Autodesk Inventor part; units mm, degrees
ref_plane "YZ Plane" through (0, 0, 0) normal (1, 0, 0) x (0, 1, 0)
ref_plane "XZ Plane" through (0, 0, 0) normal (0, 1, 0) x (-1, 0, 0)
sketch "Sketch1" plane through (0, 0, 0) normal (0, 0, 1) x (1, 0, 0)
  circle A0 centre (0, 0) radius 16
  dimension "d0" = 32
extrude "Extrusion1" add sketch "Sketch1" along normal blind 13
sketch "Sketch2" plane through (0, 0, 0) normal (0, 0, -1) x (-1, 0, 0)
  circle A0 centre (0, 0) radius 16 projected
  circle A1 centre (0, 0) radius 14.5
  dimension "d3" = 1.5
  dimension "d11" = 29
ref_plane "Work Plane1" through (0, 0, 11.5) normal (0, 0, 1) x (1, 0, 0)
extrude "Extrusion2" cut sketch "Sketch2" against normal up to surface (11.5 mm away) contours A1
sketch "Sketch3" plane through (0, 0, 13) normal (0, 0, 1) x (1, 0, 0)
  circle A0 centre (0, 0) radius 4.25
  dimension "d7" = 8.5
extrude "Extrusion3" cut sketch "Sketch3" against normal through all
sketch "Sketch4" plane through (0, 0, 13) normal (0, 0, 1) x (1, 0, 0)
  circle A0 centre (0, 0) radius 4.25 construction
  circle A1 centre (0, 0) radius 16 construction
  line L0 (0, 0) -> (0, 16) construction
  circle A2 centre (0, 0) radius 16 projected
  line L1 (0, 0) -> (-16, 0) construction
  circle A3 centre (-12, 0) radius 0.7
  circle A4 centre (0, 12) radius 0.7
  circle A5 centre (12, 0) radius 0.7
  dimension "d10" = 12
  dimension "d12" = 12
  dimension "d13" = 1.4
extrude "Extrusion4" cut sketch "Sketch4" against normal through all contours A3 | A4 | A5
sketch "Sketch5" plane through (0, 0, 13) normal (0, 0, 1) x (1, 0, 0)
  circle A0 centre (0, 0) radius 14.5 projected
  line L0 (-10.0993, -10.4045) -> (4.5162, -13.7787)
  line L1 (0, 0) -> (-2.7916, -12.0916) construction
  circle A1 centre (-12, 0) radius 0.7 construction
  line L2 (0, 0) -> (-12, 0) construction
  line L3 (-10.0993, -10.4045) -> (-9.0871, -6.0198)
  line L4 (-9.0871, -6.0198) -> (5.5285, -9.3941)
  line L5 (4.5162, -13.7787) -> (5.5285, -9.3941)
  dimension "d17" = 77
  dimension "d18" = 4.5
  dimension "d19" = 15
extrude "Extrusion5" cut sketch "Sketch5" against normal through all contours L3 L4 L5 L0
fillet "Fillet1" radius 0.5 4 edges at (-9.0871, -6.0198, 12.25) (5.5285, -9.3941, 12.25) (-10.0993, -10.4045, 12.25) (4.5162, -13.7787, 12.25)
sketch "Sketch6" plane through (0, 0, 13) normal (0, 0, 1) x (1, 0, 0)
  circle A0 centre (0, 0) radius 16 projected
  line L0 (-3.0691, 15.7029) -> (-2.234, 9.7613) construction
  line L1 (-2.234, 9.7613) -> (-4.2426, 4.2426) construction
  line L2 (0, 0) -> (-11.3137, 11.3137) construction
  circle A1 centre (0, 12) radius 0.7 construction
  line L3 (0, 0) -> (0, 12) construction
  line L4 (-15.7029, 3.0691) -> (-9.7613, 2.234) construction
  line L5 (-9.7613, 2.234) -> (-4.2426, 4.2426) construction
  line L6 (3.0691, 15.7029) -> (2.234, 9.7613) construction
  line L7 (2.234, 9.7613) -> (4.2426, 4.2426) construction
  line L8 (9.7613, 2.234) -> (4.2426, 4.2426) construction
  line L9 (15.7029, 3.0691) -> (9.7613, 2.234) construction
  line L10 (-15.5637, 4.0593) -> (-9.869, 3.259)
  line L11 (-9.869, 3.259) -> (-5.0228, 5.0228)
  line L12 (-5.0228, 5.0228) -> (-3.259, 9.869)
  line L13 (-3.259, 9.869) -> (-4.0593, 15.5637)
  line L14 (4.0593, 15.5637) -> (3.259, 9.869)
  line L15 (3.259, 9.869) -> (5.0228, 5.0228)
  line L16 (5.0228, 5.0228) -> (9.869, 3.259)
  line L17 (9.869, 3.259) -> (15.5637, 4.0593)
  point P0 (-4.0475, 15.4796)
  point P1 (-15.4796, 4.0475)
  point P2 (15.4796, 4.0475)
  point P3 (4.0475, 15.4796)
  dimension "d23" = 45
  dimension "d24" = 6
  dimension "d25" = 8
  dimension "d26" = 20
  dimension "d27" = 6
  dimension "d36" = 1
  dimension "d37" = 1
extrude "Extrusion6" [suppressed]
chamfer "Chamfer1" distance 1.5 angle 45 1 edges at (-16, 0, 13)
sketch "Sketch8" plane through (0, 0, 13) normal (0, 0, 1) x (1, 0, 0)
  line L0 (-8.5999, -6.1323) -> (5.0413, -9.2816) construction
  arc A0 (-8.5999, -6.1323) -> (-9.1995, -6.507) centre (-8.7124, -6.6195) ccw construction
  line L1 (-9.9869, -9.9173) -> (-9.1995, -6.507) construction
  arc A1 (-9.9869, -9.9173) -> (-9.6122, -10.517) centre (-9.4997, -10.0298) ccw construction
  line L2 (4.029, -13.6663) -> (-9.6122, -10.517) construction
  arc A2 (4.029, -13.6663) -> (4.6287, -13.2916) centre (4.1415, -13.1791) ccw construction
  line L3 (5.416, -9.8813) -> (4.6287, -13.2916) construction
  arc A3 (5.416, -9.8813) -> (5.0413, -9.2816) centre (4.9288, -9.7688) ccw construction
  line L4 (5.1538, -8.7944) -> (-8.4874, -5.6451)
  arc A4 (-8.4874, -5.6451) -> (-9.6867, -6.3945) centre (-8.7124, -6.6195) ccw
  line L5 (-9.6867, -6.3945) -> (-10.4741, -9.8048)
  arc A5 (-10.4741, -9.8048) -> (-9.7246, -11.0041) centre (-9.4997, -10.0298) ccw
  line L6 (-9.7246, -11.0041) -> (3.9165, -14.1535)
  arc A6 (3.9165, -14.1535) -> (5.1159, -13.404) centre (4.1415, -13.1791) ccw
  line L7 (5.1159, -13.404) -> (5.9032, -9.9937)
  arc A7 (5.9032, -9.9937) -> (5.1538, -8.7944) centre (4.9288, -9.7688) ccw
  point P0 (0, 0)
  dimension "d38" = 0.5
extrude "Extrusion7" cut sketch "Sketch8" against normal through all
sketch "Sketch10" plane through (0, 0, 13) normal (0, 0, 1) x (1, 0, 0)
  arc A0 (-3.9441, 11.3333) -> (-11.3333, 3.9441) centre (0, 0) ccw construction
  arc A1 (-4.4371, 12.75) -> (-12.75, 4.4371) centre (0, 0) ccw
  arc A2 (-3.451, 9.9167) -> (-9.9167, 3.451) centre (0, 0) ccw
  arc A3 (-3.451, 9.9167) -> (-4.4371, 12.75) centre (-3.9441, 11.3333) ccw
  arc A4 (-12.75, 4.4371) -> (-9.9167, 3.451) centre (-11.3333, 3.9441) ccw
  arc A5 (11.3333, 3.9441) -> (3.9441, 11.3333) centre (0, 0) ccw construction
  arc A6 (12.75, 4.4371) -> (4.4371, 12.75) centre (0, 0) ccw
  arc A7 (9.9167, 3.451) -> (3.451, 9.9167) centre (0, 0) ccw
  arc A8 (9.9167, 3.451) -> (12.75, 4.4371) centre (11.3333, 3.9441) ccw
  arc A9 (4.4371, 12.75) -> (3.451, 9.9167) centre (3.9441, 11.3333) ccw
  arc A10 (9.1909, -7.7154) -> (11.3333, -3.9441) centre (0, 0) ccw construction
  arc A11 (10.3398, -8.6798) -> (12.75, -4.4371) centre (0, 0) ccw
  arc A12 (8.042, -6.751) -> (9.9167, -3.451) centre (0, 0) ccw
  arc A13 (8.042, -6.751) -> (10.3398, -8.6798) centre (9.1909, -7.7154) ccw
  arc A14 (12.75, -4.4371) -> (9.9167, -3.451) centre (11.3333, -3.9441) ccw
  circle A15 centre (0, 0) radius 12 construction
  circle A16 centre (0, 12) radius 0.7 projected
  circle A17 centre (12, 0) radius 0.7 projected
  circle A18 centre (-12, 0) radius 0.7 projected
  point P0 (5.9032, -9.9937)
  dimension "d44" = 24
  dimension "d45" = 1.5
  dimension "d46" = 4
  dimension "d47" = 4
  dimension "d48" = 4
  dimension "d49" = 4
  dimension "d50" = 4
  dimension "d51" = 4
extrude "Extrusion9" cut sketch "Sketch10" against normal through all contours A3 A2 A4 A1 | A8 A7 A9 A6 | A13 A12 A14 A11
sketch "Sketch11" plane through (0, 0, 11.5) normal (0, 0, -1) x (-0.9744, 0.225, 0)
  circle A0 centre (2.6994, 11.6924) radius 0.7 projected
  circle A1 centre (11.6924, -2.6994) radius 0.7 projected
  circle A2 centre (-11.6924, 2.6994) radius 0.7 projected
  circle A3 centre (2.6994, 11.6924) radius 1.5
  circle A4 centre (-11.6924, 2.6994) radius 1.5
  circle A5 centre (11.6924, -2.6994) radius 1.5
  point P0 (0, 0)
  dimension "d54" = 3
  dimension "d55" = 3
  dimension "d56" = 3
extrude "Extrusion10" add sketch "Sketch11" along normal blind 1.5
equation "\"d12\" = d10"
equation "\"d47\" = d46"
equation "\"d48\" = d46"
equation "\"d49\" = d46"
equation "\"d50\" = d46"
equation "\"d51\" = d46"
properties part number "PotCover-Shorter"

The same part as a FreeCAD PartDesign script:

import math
import FreeCAD as App
import Part
import Sketcher
Q = App.Units.Quantity


def edges_at(feature, points):
    """Names of the edges that pass closest to the given points."""
    edges = feature.Shape.Edges
    near = lambda p: min(range(len(edges)), key=lambda i: edges[i].distToShape(Part.Vertex(*p))[0])
    return sorted({f"Edge{near(p) + 1}" for p in points})

doc = App.newDocument("Part")
body = doc.addObject("PartDesign::Body", "Body")

# Sketch on XY plane
sketch1 = body.newObject("Sketcher::SketchObject", "Sketch")
sketch1.AttachmentSupport = (doc.getObject("XY_Plane"), [""])
sketch1.MapMode = "FlatFace"
sketch1.addGeometry(Part.Circle(App.Vector(0, 0, 0), App.Vector(0, 0, 1), 16), False)
sketch1.addConstraint(Sketcher.Constraint("Coincident", 0, 3, -1, 1))
sketch1.addConstraint(Sketcher.Constraint("Diameter", 0, Q("32 mm")))
pad1 = body.newObject("PartDesign::Pad", "Pad")
pad1.Profile = sketch1
pad1.Length = 13

# Sketch on XY plane
sketch2 = body.newObject("Sketcher::SketchObject", "Sketch001")
sketch2.AttachmentSupport = (doc.getObject("XY_Plane"), [""])
sketch2.MapMode = "FlatFace"
sketch2.addGeometry(Part.Circle(App.Vector(0, 0, 0), App.Vector(0, 0, 1), 14), False)
sketch2.addConstraint(Sketcher.Constraint("Coincident", 0, 3, -1, 1))
sketch2.addConstraint(Sketcher.Constraint("Diameter", 0, Q("29 mm")))
pocket1 = body.newObject("PartDesign::Pocket", "Pocket")
pocket1.Profile = sketch2
pocket1.Length = 11.5
pocket1.Reversed = True

# Sketch on XY plane
sketch3 = body.newObject("Sketcher::SketchObject", "Sketch002")
sketch3.AttachmentSupport = (doc.getObject("XY_Plane"), [""])
sketch3.MapMode = "FlatFace"
sketch3.AttachmentOffset = App.Placement(App.Vector(0, 0, 13), App.Rotation())
sketch3.addGeometry(Part.Circle(App.Vector(0, 0, 0), App.Vector(0, 0, 1), 4.2), False)
sketch3.addConstraint(Sketcher.Constraint("Coincident", 0, 3, -1, 1))
sketch3.addConstraint(Sketcher.Constraint("Diameter", 0, Q("8.5 mm")))
pocket2 = body.newObject("PartDesign::Pocket", "Pocket001")
pocket2.Profile = sketch3
pocket2.Type = "ThroughAll"

# Sketch on XY plane
sketch4 = body.newObject("Sketcher::SketchObject", "Sketch003")
sketch4.AttachmentSupport = (doc.getObject("XY_Plane"), [""])
sketch4.MapMode = "FlatFace"
sketch4.AttachmentOffset = App.Placement(App.Vector(0, 0, 13), App.Rotation())
sketch4.addGeometry(Part.Circle(App.Vector(-12, 0, 0), App.Vector(0, 0, 1), 0.7), False)
sketch4.addGeometry(Part.Circle(App.Vector(0, 12, 0), App.Vector(0, 0, 1), 0.7), False)
sketch4.addGeometry(Part.Circle(App.Vector(12, 0, 0), App.Vector(0, 0, 1), 0.7), False)
sketch4.addConstraint(Sketcher.Constraint("Equal", 0, 1))
sketch4.addConstraint(Sketcher.Constraint("Equal", 1, 2))
sketch4.addConstraint(Sketcher.Constraint("Symmetric", 0, 3, 2, 3, -1, 1))
sketch4.addConstraint(Sketcher.Constraint("PointOnObject", 0, 3, -1))
sketch4.addConstraint(Sketcher.Constraint("PointOnObject", 1, 3, -2))
sketch4.addConstraint(Sketcher.Constraint("Diameter", 0, Q("1.4 mm")))
sketch4.addConstraint(Sketcher.Constraint("DistanceX", 0, 3, -1, 1, Q("12 mm")))
sketch4.addConstraint(Sketcher.Constraint("DistanceY", -1, 1, 1, 3, Q("12 mm")))
pocket3 = body.newObject("PartDesign::Pocket", "Pocket002")
pocket3.Profile = sketch4
pocket3.Type = "ThroughAll"

# Sketch on XY plane
sketch5 = body.newObject("Sketcher::SketchObject", "Sketch004")
sketch5.AttachmentSupport = (doc.getObject("XY_Plane"), [""])
sketch5.MapMode = "FlatFace"
sketch5.AttachmentOffset = App.Placement(App.Vector(0, 0, 13), App.Rotation())
sketch5.addGeometry(Part.LineSegment(App.Vector(-9.1, -6, 0), App.Vector(-10.1, -10.4, 0)), False)
sketch5.addGeometry(Part.LineSegment(App.Vector(-10.1, -10.4, 0), App.Vector(4.5, -13.8, 0)), False)
sketch5.addGeometry(Part.LineSegment(App.Vector(4.5, -13.8, 0), App.Vector(5.5, -9.4, 0)), False)
sketch5.addGeometry(Part.LineSegment(App.Vector(5.5, -9.4, 0), App.Vector(-9.1, -6, 0)), False)
sketch5.addConstraint(Sketcher.Constraint("Coincident", 0, 2, 1, 1))
sketch5.addConstraint(Sketcher.Constraint("Coincident", 1, 2, 2, 1))
sketch5.addConstraint(Sketcher.Constraint("Coincident", 2, 2, 3, 1))
sketch5.addConstraint(Sketcher.Constraint("Coincident", 3, 2, 0, 1))
sketch5.addConstraint(Sketcher.Constraint("Perpendicular", 0, 1))
sketch5.addConstraint(Sketcher.Constraint("Perpendicular", 1, 2))
sketch5.addConstraint(Sketcher.Constraint("Perpendicular", 2, 3))
sketch5.addConstraint(Sketcher.Constraint("Angle", 2, Q("76.9996 deg")))
sketch5.addConstraint(Sketcher.Constraint("Distance", 1, Q("15 mm")))
sketch5.addConstraint(Sketcher.Constraint("Distance", 0, Q("4.5 mm")))
sketch5.addConstraint(Sketcher.Constraint("DistanceY", 2, 2, -1, 1, Q("9.394 mm")))
sketch5.addConstraint(Sketcher.Constraint("DistanceX", 3, 2, -1, 1, Q("9.087 mm")))
pocket4 = body.newObject("PartDesign::Pocket", "Pocket003")
pocket4.Profile = sketch5
pocket4.Type = "ThroughAll"
doc.recompute()

fillet = body.newObject("PartDesign::Fillet", "Fillet")
fillet.Base = (pocket4, edges_at(pocket4, [
    (-9.087, -6.02, 12.25),
    (5.529, -9.394, 12.25),
    (-10.099, -10.405, 12.25),
    (4.516, -13.779, 12.25),
]))
fillet.Radius = 0.5
doc.recompute()

chamfer = body.newObject("PartDesign::Chamfer", "Chamfer")
chamfer.Base = (fillet, edges_at(fillet, [(-16, 0, 13)]))
chamfer.Size = 1.5

# Sketch on XY plane
sketch6 = body.newObject("Sketcher::SketchObject", "Sketch005")
sketch6.AttachmentSupport = (doc.getObject("XY_Plane"), [""])
sketch6.MapMode = "FlatFace"
sketch6.AttachmentOffset = App.Placement(App.Vector(0, 0, 13), App.Rotation())
sketch6.addGeometry(Part.ArcOfCircle(Part.Circle(App.Vector(4.9, -9.8, 0), App.Vector(0, 0, 1), 1), math.radians(-13), math.radians(77)), False)
sketch6.addGeometry(Part.LineSegment(App.Vector(5.2, -8.8, 0), App.Vector(-8.5, -5.6, 0)), False)
sketch6.addGeometry(Part.ArcOfCircle(Part.Circle(App.Vector(-8.7, -6.6, 0), App.Vector(0, 0, 1), 1), math.radians(77), math.radians(167)), False)
sketch6.addGeometry(Part.LineSegment(App.Vector(-9.7, -6.4, 0), App.Vector(-10.5, -9.8, 0)), False)
sketch6.addGeometry(Part.ArcOfCircle(Part.Circle(App.Vector(-9.5, -10, 0), App.Vector(0, 0, 1), 1), math.radians(167), math.radians(257)), False)
sketch6.addGeometry(Part.LineSegment(App.Vector(-9.7, -11, 0), App.Vector(3.9, -14.2, 0)), False)
sketch6.addGeometry(Part.ArcOfCircle(Part.Circle(App.Vector(4.1, -13.2, 0), App.Vector(0, 0, 1), 1), math.radians(-103), math.radians(-13)), False)
sketch6.addGeometry(Part.LineSegment(App.Vector(5.1, -13.4, 0), App.Vector(5.9, -10, 0)), False)
sketch6.addConstraint(Sketcher.Constraint("Tangent", 0, 2, 1, 1))
sketch6.addConstraint(Sketcher.Constraint("Tangent", 1, 2, 2, 1))
sketch6.addConstraint(Sketcher.Constraint("Tangent", 2, 2, 3, 1))
sketch6.addConstraint(Sketcher.Constraint("Tangent", 3, 2, 4, 1))
sketch6.addConstraint(Sketcher.Constraint("Tangent", 4, 2, 5, 1))
sketch6.addConstraint(Sketcher.Constraint("Tangent", 5, 2, 6, 1))
sketch6.addConstraint(Sketcher.Constraint("Tangent", 6, 2, 7, 1))
sketch6.addConstraint(Sketcher.Constraint("Tangent", 7, 2, 0, 1))
sketch6.addConstraint(Sketcher.Constraint("Equal", 0, 2))
sketch6.addConstraint(Sketcher.Constraint("Equal", 2, 4))
sketch6.addConstraint(Sketcher.Constraint("Equal", 4, 6))
sketch6.addConstraint(Sketcher.Constraint("Perpendicular", 1, 3))
sketch6.addConstraint(Sketcher.Constraint("Perpendicular", 3, 5))
sketch6.addConstraint(Sketcher.Constraint("Perpendicular", 5, 7))
sketch6.addConstraint(Sketcher.Constraint("Radius", 0, Q("1 mm")))
sketch6.addConstraint(Sketcher.Constraint("Angle", 1, Q("167 deg")))
sketch6.addConstraint(Sketcher.Constraint("Distance", 1, Q("14 mm")))
sketch6.addConstraint(Sketcher.Constraint("Distance", 3, Q("3.5 mm")))
sketch6.addConstraint(Sketcher.Constraint("DistanceY", 6, 3, -1, 1, Q("13.179 mm")))
sketch6.addConstraint(Sketcher.Constraint("DistanceX", 3, 2, -1, 1, Q("10.474 mm")))
pocket5 = body.newObject("PartDesign::Pocket", "Pocket004")
pocket5.Profile = sketch6
pocket5.Type = "ThroughAll"

# Sketch on XY plane
sketch7 = body.newObject("Sketcher::SketchObject", "Sketch006")
sketch7.AttachmentSupport = (doc.getObject("XY_Plane"), [""])
sketch7.MapMode = "FlatFace"
sketch7.AttachmentOffset = App.Placement(App.Vector(0, 0, 13), App.Rotation())
sketch7.addGeometry(Part.ArcOfCircle(Part.Circle(App.Vector(-3.9, 11.3, 0), App.Vector(0, 0, 1), 1.5), math.radians(-71), math.radians(109)), False)
sketch7.addGeometry(Part.ArcOfCircle(Part.Circle(App.Vector(0, 0, 0), App.Vector(0, 0, 1), 13.5), math.radians(109), math.radians(161)), False)
sketch7.addGeometry(Part.ArcOfCircle(Part.Circle(App.Vector(-11.3, 3.9, 0), App.Vector(0, 0, 1), 1.5), math.radians(161), math.radians(341)), False)
sketch7.addGeometry(Part.ArcOfCircle(Part.Circle(App.Vector(0, 0, 0), App.Vector(0, 0, 1), 10.5), math.radians(109), math.radians(161)), False)
sketch7.addGeometry(Part.ArcOfCircle(Part.Circle(App.Vector(11.3, 3.9, 0), App.Vector(0, 0, 1), 1.5), math.radians(-161), math.radians(19)), False)
sketch7.addGeometry(Part.ArcOfCircle(Part.Circle(App.Vector(0, 0, 0), App.Vector(0, 0, 1), 13.5), math.radians(19), math.radians(71)), False)
sketch7.addGeometry(Part.ArcOfCircle(Part.Circle(App.Vector(3.9, 11.3, 0), App.Vector(0, 0, 1), 1.5), math.radians(71), math.radians(251)), False)
sketch7.addGeometry(Part.ArcOfCircle(Part.Circle(App.Vector(0, 0, 0), App.Vector(0, 0, 1), 10.5), math.radians(19), math.radians(71)), False)
sketch7.addGeometry(Part.ArcOfCircle(Part.Circle(App.Vector(9.2, -7.7, 0), App.Vector(0, 0, 1), 1.5), math.radians(140), math.radians(320)), False)
sketch7.addGeometry(Part.ArcOfCircle(Part.Circle(App.Vector(0, 0, 0), App.Vector(0, 0, 1), 13.5), math.radians(-40), math.radians(-19)), False)
sketch7.addGeometry(Part.ArcOfCircle(Part.Circle(App.Vector(11.3, -3.9, 0), App.Vector(0, 0, 1), 1.5), math.radians(-19), math.radians(161)), False)
sketch7.addGeometry(Part.ArcOfCircle(Part.Circle(App.Vector(0, 0, 0), App.Vector(0, 0, 1), 10.5), math.radians(-40), math.radians(-19)), False)
sketch7.addConstraint(Sketcher.Constraint("Tangent", 0, 2, 1, 1))
sketch7.addConstraint(Sketcher.Constraint("Tangent", 1, 2, 2, 1))
sketch7.addConstraint(Sketcher.Constraint("Tangent", 2, 2, 3, 2))
sketch7.addConstraint(Sketcher.Constraint("Tangent", 3, 1, 0, 1))
sketch7.addConstraint(Sketcher.Constraint("Tangent", 4, 2, 5, 1))
sketch7.addConstraint(Sketcher.Constraint("Tangent", 5, 2, 6, 1))
sketch7.addConstraint(Sketcher.Constraint("Tangent", 6, 2, 7, 2))
sketch7.addConstraint(Sketcher.Constraint("Tangent", 7, 1, 4, 1))
sketch7.addConstraint(Sketcher.Constraint("Tangent", 8, 2, 9, 1))
sketch7.addConstraint(Sketcher.Constraint("Tangent", 9, 2, 10, 1))
sketch7.addConstraint(Sketcher.Constraint("Tangent", 10, 2, 11, 2))
sketch7.addConstraint(Sketcher.Constraint("Tangent", 11, 1, 8, 1))
sketch7.addConstraint(Sketcher.Constraint("Coincident", 1, 3, -1, 1))
sketch7.addConstraint(Sketcher.Constraint("Coincident", 3, 3, -1, 1))
sketch7.addConstraint(Sketcher.Constraint("Coincident", 5, 3, -1, 1))
sketch7.addConstraint(Sketcher.Constraint("Coincident", 7, 3, -1, 1))
sketch7.addConstraint(Sketcher.Constraint("Coincident", 9, 3, -1, 1))
sketch7.addConstraint(Sketcher.Constraint("Coincident", 11, 3, -1, 1))
sketch7.addConstraint(Sketcher.Constraint("Equal", 2, 4))
sketch7.addConstraint(Sketcher.Constraint("Equal", 1, 5))
sketch7.addConstraint(Sketcher.Constraint("Equal", 6, 8))
sketch7.addConstraint(Sketcher.Constraint("Equal", 5, 9))
sketch7.addConstraint(Sketcher.Constraint("Horizontal", 2, 3, 4, 3))
sketch7.addConstraint(Sketcher.Constraint("Horizontal", 0, 3, 6, 3))
sketch7.addConstraint(Sketcher.Constraint("Vertical", 4, 3, 10, 3))
sketch7.addConstraint(Sketcher.Constraint("Radius", 0, Q("1.5 mm")))
sketch7.addConstraint(Sketcher.Constraint("Radius", 1, Q("13.5 mm")))
sketch7.addConstraint(Sketcher.Constraint("DistanceY", 11, 1, 10, 2, Q("3.3 mm")))
sketch7.addConstraint(Sketcher.Constraint("DistanceY", -1, 1, 0, 2, Q("12.75 mm")))
sketch7.addConstraint(Sketcher.Constraint("DistanceX", 1, 2, -1, 1, Q("12.75 mm")))
pocket6 = body.newObject("PartDesign::Pocket", "Pocket005")
pocket6.Profile = sketch7
pocket6.Type = "ThroughAll"

# Sketch on XY plane
sketch8 = body.newObject("Sketcher::SketchObject", "Sketch007")
sketch8.AttachmentSupport = (doc.getObject("XY_Plane"), [""])
sketch8.MapMode = "FlatFace"
sketch8.AttachmentOffset = App.Placement(App.Vector(0, 0, 11.5), App.Rotation())
sketch8.addGeometry(Part.Circle(App.Vector(0, 12, 0), App.Vector(0, 0, 1), 1.5), False)
sketch8.addGeometry(Part.Circle(App.Vector(0, 12, 0), App.Vector(0, 0, 1), 0.7), False)
sketch8.addGeometry(Part.Circle(App.Vector(12, 0, 0), App.Vector(0, 0, 1), 1.5), False)
sketch8.addGeometry(Part.Circle(App.Vector(12, 0, 0), App.Vector(0, 0, 1), 0.7), False)
sketch8.addGeometry(Part.Circle(App.Vector(-12, 0, 0), App.Vector(0, 0, 1), 1.5), False)
sketch8.addGeometry(Part.Circle(App.Vector(-12, 0, 0), App.Vector(0, 0, 1), 0.7), False)
sketch8.addConstraint(Sketcher.Constraint("Coincident", 1, 3, 0, 3))
sketch8.addConstraint(Sketcher.Constraint("Coincident", 3, 3, 2, 3))
sketch8.addConstraint(Sketcher.Constraint("Coincident", 5, 3, 4, 3))
sketch8.addConstraint(Sketcher.Constraint("Equal", 0, 2))
sketch8.addConstraint(Sketcher.Constraint("Equal", 1, 3))
sketch8.addConstraint(Sketcher.Constraint("Equal", 2, 4))
sketch8.addConstraint(Sketcher.Constraint("Equal", 3, 5))
sketch8.addConstraint(Sketcher.Constraint("Symmetric", 2, 3, 4, 3, -1, 1))
sketch8.addConstraint(Sketcher.Constraint("PointOnObject", 0, 3, -2))
sketch8.addConstraint(Sketcher.Constraint("PointOnObject", 2, 3, -1))
sketch8.addConstraint(Sketcher.Constraint("Diameter", 0, Q("3 mm")))
sketch8.addConstraint(Sketcher.Constraint("Diameter", 1, Q("1.4 mm")))
sketch8.addConstraint(Sketcher.Constraint("DistanceY", -1, 1, 0, 3, Q("12 mm")))
sketch8.addConstraint(Sketcher.Constraint("DistanceX", -1, 1, 2, 3, Q("12 mm")))
pad2 = body.newObject("PartDesign::Pad", "Pad001")
pad2.Profile = sketch8
pad2.Length = 1.5
pad2.Reversed = True

doc.recompute()
